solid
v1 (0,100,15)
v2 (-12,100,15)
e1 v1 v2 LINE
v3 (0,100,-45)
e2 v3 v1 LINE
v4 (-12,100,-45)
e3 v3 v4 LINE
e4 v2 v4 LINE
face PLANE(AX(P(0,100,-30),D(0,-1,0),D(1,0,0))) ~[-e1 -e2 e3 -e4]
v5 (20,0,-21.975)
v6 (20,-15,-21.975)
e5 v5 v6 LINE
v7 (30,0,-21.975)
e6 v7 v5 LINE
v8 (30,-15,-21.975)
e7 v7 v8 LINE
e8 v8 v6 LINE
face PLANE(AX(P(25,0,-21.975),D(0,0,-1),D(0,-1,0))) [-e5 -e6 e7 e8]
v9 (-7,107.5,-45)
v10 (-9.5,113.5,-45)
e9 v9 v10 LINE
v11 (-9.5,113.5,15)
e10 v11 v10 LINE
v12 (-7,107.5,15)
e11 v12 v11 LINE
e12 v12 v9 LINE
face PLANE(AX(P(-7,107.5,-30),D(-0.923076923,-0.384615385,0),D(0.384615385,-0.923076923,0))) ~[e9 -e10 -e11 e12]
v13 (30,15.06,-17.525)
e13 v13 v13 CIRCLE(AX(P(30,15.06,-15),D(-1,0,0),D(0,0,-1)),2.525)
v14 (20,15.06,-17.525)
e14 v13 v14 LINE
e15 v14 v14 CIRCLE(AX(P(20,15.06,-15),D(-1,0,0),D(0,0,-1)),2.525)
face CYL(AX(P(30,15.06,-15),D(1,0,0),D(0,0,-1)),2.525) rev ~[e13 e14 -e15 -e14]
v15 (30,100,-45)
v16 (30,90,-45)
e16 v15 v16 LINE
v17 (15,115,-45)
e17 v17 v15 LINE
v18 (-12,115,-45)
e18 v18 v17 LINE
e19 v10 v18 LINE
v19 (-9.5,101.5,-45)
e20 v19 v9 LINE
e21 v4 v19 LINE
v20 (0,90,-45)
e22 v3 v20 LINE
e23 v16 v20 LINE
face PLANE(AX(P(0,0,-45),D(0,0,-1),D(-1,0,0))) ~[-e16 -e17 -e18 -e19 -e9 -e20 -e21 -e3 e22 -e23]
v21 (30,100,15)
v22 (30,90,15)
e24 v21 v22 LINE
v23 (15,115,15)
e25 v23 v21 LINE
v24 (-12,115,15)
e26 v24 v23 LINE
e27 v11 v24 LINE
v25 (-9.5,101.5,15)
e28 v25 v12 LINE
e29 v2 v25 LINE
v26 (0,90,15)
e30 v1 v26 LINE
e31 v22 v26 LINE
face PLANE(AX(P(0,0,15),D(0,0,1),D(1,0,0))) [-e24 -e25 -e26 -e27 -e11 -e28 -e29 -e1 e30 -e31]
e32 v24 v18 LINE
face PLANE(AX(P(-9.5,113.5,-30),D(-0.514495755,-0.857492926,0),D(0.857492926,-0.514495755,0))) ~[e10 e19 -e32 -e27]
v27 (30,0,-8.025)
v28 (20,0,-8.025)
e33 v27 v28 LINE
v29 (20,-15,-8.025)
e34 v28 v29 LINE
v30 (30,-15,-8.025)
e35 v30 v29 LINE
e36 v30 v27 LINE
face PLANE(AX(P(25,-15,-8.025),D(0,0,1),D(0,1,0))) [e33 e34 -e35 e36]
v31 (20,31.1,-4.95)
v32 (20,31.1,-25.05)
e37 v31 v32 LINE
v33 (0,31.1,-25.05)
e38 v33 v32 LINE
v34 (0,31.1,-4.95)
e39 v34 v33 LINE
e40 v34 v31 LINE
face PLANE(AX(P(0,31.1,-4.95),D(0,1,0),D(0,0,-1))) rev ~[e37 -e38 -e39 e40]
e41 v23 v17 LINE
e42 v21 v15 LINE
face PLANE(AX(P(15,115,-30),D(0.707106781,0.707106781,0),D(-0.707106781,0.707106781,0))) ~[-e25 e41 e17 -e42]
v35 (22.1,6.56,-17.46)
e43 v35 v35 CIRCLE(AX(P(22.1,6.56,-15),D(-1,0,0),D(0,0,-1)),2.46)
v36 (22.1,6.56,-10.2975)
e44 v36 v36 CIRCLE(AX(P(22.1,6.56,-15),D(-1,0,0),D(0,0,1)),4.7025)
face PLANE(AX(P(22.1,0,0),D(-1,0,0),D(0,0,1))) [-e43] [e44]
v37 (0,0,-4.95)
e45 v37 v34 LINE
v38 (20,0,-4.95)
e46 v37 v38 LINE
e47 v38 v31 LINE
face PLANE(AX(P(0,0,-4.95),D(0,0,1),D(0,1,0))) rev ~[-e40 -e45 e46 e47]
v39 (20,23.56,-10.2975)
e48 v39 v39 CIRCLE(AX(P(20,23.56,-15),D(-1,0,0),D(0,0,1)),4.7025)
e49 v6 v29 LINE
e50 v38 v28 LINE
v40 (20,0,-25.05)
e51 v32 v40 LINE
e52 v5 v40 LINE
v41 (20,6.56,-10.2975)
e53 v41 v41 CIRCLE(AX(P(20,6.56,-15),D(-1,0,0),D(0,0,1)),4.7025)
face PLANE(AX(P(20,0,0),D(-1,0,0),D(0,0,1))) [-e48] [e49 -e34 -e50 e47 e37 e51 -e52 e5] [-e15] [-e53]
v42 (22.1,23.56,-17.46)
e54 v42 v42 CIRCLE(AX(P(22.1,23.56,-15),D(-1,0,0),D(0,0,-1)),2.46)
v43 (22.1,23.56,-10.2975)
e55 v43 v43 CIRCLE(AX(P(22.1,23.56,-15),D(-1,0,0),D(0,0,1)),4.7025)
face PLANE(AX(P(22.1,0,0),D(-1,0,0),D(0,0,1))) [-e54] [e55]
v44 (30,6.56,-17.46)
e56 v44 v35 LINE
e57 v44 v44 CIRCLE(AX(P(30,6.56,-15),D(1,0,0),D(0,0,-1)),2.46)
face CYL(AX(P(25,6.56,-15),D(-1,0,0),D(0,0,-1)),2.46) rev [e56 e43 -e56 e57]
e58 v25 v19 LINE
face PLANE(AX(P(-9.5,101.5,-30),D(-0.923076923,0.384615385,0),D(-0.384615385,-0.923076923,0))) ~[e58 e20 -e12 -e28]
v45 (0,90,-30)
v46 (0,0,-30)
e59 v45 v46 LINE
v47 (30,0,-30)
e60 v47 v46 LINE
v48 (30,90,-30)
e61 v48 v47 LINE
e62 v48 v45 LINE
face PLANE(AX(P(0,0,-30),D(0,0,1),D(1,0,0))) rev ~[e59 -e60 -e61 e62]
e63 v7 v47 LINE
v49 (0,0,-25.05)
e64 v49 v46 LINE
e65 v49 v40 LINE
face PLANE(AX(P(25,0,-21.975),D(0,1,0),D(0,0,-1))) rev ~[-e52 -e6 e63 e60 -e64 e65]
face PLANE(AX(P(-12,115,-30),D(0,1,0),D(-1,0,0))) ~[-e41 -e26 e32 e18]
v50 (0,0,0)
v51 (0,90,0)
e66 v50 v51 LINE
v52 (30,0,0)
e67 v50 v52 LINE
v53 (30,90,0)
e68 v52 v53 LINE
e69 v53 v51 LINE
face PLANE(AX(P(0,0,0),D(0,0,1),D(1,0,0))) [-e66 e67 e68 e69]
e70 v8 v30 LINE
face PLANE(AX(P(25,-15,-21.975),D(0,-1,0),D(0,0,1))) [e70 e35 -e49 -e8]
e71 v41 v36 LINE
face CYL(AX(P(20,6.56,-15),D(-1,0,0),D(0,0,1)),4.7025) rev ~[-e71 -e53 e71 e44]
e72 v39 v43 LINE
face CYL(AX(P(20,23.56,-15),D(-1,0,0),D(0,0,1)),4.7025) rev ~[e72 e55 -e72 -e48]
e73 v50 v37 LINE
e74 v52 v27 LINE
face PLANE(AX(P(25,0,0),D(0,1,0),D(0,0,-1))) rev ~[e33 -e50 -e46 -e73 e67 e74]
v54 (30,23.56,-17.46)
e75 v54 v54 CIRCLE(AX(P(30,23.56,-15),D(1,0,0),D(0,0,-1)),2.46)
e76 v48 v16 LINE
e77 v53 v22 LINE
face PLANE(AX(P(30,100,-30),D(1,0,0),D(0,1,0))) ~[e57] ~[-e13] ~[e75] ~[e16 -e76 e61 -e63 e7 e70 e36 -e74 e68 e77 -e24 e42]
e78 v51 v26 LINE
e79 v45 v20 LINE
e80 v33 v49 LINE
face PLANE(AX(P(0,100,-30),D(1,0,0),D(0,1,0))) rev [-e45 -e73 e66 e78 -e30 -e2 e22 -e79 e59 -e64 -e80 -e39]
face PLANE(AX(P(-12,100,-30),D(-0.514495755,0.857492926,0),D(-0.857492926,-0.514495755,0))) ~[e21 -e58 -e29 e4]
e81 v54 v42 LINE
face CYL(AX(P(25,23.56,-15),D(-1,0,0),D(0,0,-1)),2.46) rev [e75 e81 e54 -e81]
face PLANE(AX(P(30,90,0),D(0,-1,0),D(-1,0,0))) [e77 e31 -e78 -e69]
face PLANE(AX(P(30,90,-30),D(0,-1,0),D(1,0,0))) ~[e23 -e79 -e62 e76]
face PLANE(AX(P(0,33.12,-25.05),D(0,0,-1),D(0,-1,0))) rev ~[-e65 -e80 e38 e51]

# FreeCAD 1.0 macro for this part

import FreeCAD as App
import Part
import Sketcher

V = App.Vector
Q = App.Units.Quantity


def add_polygon(sketch, points):
    """Adds a closed chain of lines whose ends are joined by coincident constraints."""
    first, n = sketch.GeometryCount, len(points)
    for a, b in zip(points, points[1:] + points[:1]):
        sketch.addGeometry(Part.LineSegment(App.Vector(*a, 0), App.Vector(*b, 0)), False)
    for i in range(n):
        sketch.addConstraint(Sketcher.Constraint("Coincident", first + i, 2, first + (i + 1) % n, 1))

doc = App.newDocument("Part")
body = doc.addObject("PartDesign::Body", "Body")

sketch1 = doc.addObject("Sketcher::SketchObject", "Sketch")
body.addObject(sketch1)
sketch1.AttachmentSupport = (doc.XY_Plane, [""])
sketch1.MapMode = "FlatFace"
add_polygon(sketch1, [(0, 40), (0, 0), (25, 0), (25, 40)])
sketch1.addConstraint(Sketcher.Constraint("Vertical", 0))
sketch1.addConstraint(Sketcher.Constraint("Horizontal", 1))
sketch1.addConstraint(Sketcher.Constraint("Vertical", 2))
sketch1.addConstraint(Sketcher.Constraint("Horizontal", 3))
sketch1.addConstraint(Sketcher.Constraint("Coincident", 0, 2, -1, 1))
sketch1.addConstraint(Sketcher.Constraint("DistanceX", 1, 1, 1, 2, Q("25 mm")))
sketch1.addConstraint(Sketcher.Constraint("DistanceY", 0, 2, 0, 1, Q("40 mm")))
pad1 = doc.addObject("PartDesign::Pad", "Pad")
body.addObject(pad1)
pad1.Profile = sketch1
pad1.Length = 30
pad1.Reversed = True

sketch2 = doc.addObject("Sketcher::SketchObject", "Sketch001")
body.addObject(sketch2)
sketch2.AttachmentSupport = (doc.YZ_Plane, [""])
sketch2.MapMode = "FlatFace"
sketch2.AttachmentOffset = App.Placement(V(0, 0, 25), App.Rotation())
sketch2.addGeometry(Part.Circle(V(6.6, -15, 0), V(0, 0, 1), 2.5), False)
sketch2.addConstraint(Sketcher.Constraint("Diameter", 0, Q("4.92 mm")))
sketch2.addConstraint(Sketcher.Constraint("DistanceY", 0, 3, -1, 1, Q("15 mm")))
sketch2.addConstraint(Sketcher.Constraint("DistanceX", -1, 1, 0, 3, Q("6.56 mm")))
pocket1 = doc.addObject("PartDesign::Pocket", "Pocket")
body.addObject(pocket1)
pocket1.Profile = sketch2
pocket1.Length = 30

sketch3 = doc.addObject("Sketcher::SketchObject", "Sketch002")
body.addObject(sketch3)
sketch3.AttachmentSupport = (doc.YZ_Plane, [""])
sketch3.MapMode = "FlatFace"
add_polygon(sketch3, [(0, -25), (0, -5), (33, -5), (33, -25)])
sketch3.addConstraint(Sketcher.Constraint("Vertical", 0))
sketch3.addConstraint(Sketcher.Constraint("Horizontal", 1))
sketch3.addConstraint(Sketcher.Constraint("Vertical", 2))
sketch3.addConstraint(Sketcher.Constraint("Horizontal", 3))
sketch3.addConstraint(Sketcher.Constraint("PointOnObject", 0, 2, -2))
sketch3.addConstraint(Sketcher.Constraint("DistanceY", 0, 1, 0, 2, Q("20.1 mm")))
sketch3.addConstraint(Sketcher.Constraint("DistanceX", 1, 1, 1, 2, Q("33.12 mm")))
sketch3.addConstraint(Sketcher.Constraint("DistanceY", 0, 2, -1, 1, Q("4.95 mm")))
pocket2 = doc.addObject("PartDesign::Pocket", "Pocket001")
body.addObject(pocket2)
pocket2.Profile = sketch3
pocket2.Length = 20
pocket2.Reversed = True

sketch4 = doc.addObject("Sketcher::SketchObject", "Sketch003")
body.addObject(sketch4)
sketch4.AttachmentSupport = (doc.XZ_Plane, [""])
sketch4.MapMode = "FlatFace"
add_polygon(sketch4, [(25, -8), (20, -8), (20, -22), (25, -22)])
sketch4.addConstraint(Sketcher.Constraint("Horizontal", 0))
sketch4.addConstraint(Sketcher.Constraint("Vertical", 1))
sketch4.addConstraint(Sketcher.Constraint("Horizontal", 2))
sketch4.addConstraint(Sketcher.Constraint("Vertical", 3))
sketch4.addConstraint(Sketcher.Constraint("DistanceY", 1, 2, 1, 1, Q("13.95 mm")))
sketch4.addConstraint(Sketcher.Constraint("DistanceX", 0, 2, 0, 1, Q("5 mm")))
sketch4.addConstraint(Sketcher.Constraint("DistanceX", -1, 1, 0, 2, Q("20 mm")))
sketch4.addConstraint(Sketcher.Constraint("DistanceY", 0, 2, -1, 1, Q("8.025 mm")))
pad2 = doc.addObject("PartDesign::Pad", "Pad001")
body.addObject(pad2)
pad2.Profile = sketch4
pad2.Length = 15

sketch5 = doc.addObject("Sketcher::SketchObject", "Sketch004")
body.addObject(sketch5)
sketch5.AttachmentSupport = (doc.YZ_Plane, [""])
sketch5.MapMode = "FlatFace"
sketch5.AttachmentOffset = App.Placement(V(0, 0, 20), App.Rotation())
sketch5.addGeometry(Part.Circle(V(6.6, -15, 0), V(0, 0, 1), 4.7), False)
sketch5.addGeometry(Part.Circle(V(6.6, -15, 0), V(0, 0, 1), 2.5), False)
sketch5.addConstraint(Sketcher.Constraint("Coincident", 1, 3, 0, 3))
sketch5.addConstraint(Sketcher.Constraint("Diameter", 0, Q("9.405 mm")))
sketch5.addConstraint(Sketcher.Constraint("Diameter", 1, Q("4.92 mm")))
sketch5.addConstraint(Sketcher.Constraint("DistanceY", 0, 3, -1, 1, Q("15 mm")))
sketch5.addConstraint(Sketcher.Constraint("DistanceX", -1, 1, 0, 3, Q("6.56 mm")))
pocket3 = doc.addObject("PartDesign::Pocket", "Pocket002")
body.addObject(pocket3)
pocket3.Profile = sketch5
pocket3.Length = 2.1
pocket3.Reversed = True

sketch6 = doc.addObject("Sketcher::SketchObject", "Sketch005")
body.addObject(sketch6)
sketch6.AttachmentSupport = (doc.YZ_Plane, [""])
sketch6.MapMode = "FlatFace"
sketch6.AttachmentOffset = App.Placement(V(0, 0, 25), App.Rotation())
sketch6.addGeometry(Part.Circle(V(23.6, -15, 0), V(0, 0, 1), 2.5), False)
sketch6.addConstraint(Sketcher.Constraint("Diameter", 0, Q("4.92 mm")))
sketch6.addConstraint(Sketcher.Constraint("DistanceY", 0, 3, -1, 1, Q("15 mm")))
sketch6.addConstraint(Sketcher.Constraint("DistanceX", -1, 1, 0, 3, Q("23.56 mm")))
pocket4 = doc.addObject("PartDesign::Pocket", "Pocket003")
body.addObject(pocket4)
pocket4.Profile = sketch6
pocket4.Length = 10

sketch7 = doc.addObject("Sketcher::SketchObject", "Sketch006")
body.addObject(sketch7)
sketch7.AttachmentSupport = (doc.YZ_Plane, [""])
sketch7.MapMode = "FlatFace"
sketch7.AttachmentOffset = App.Placement(V(0, 0, 20), App.Rotation())
sketch7.addGeometry(Part.Circle(V(23.6, -15, 0), V(0, 0, 1), 4.7), False)
sketch7.addGeometry(Part.Circle(V(23.6, -15, 0), V(0, 0, 1), 2.5), False)
sketch7.addConstraint(Sketcher.Constraint("Coincident", 1, 3, 0, 3))
sketch7.addConstraint(Sketcher.Constraint("Diameter", 0, Q("9.405 mm")))
sketch7.addConstraint(Sketcher.Constraint("Diameter", 1, Q("4.92 mm")))
sketch7.addConstraint(Sketcher.Constraint("DistanceY", 0, 3, -1, 1, Q("15 mm")))
sketch7.addConstraint(Sketcher.Constraint("DistanceX", -1, 1, 0, 3, Q("23.56 mm")))
pocket5 = doc.addObject("PartDesign::Pocket", "Pocket004")
body.addObject(pocket5)
pocket5.Profile = sketch7
pocket5.Length = 2.1
pocket5.Reversed = True

sketch8 = doc.addObject("Sketcher::SketchObject", "Sketch007")
body.addObject(sketch8)
sketch8.AttachmentSupport = (doc.YZ_Plane, [""])
sketch8.MapMode = "FlatFace"
sketch8.AttachmentOffset = App.Placement(V(0, 0, 25), App.Rotation())
add_polygon(sketch8, [(0, -30), (40, -30), (40, 0), (0, 0), (0, -8), (-15, -8), (-15, -22), (0, -22)])
sketch8.addGeometry(Part.Circle(V(6.6, -15, 0), V(0, 0, 1), 2.5), False)
sketch8.addGeometry(Part.Circle(V(23.6, -15, 0), V(0, 0, 1), 2.5), False)
sketch8.addConstraint(Sketcher.Constraint("Horizontal", 0))
sketch8.addConstraint(Sketcher.Constraint("Vertical", 1))
sketch8.addConstraint(Sketcher.Constraint("Horizontal", 2))
sketch8.addConstraint(Sketcher.Constraint("Vertical", 3))
sketch8.addConstraint(Sketcher.Constraint("Horizontal", 4))
sketch8.addConstraint(Sketcher.Constraint("Vertical", 5))
sketch8.addConstraint(Sketcher.Constraint("Horizontal", 6))
sketch8.addConstraint(Sketcher.Constraint("Vertical", 7))
sketch8.addConstraint(Sketcher.Constraint("Coincident", 2, 2, -1, 1))
sketch8.addConstraint(Sketcher.Constraint("Equal", 8, 9))
sketch8.addConstraint(Sketcher.Constraint("PointOnObject", 6, 2, -2))
sketch8.addConstraint(Sketcher.Constraint("Horizontal", 8, 3, 9, 3))
sketch8.addConstraint(Sketcher.Constraint("Equal", 3, 7))
sketch8.addConstraint(Sketcher.Constraint("Diameter", 8, Q("4.92 mm")))
sketch8.addConstraint(Sketcher.Constraint("DistanceX", 0, 1, 0, 2, Q("40 mm")))
sketch8.addConstraint(Sketcher.Constraint("DistanceX", 4, 2, 4, 1, Q("15 mm")))
sketch8.addConstraint(Sketcher.Constraint("DistanceY", 1, 1, 1, 2, Q("30 mm")))
sketch8.addConstraint(Sketcher.Constraint("DistanceY", 8, 3, -1, 1, Q("15 mm")))
sketch8.addConstraint(Sketcher.Constraint("DistanceX", 8, 3, 9, 3, Q("17 mm")))
sketch8.addConstraint(Sketcher.Constraint("DistanceY", 5, 2, 5, 1, Q("13.95 mm")))
sketch8.addConstraint(Sketcher.Constraint("DistanceX", -1, 1, 8, 3, Q("6.56 mm")))
pad3 = doc.addObject("PartDesign::Pad", "Pad002")
body.addObject(pad3)
pad3.Profile = sketch8
pad3.Length = 5

sketch9 = doc.addObject("Sketcher::SketchObject", "Sketch008")
body.addObject(sketch9)
sketch9.AttachmentSupport = (doc.XZ_Plane, [""])
sketch9.MapMode = "FlatFace"
sketch9.AttachmentOffset = App.Placement(V(0, 0, -40), App.Rotation())
add_polygon(sketch9, [(30, -30), (0, -30), (0, 0), (30, 0)])
sketch9.addConstraint(Sketcher.Constraint("Horizontal", 0))
sketch9.addConstraint(Sketcher.Constraint("Vertical", 1))
sketch9.addConstraint(Sketcher.Constraint("Horizontal", 2))
sketch9.addConstraint(Sketcher.Constraint("Vertical", 3))
sketch9.addConstraint(Sketcher.Constraint("Coincident", 1, 2, -1, 1))
sketch9.addConstraint(Sketcher.Constraint("Equal", 2, 1))
sketch9.addConstraint(Sketcher.Constraint("DistanceX", 0, 2, 0, 1, Q("30 mm")))
pad4 = doc.addObject("PartDesign::Pad", "Pad003")
body.addObject(pad4)
pad4.Profile = sketch9
pad4.Length = 30
pad4.Reversed = True

sketch10 = doc.addObject("Sketcher::SketchObject", "Sketch009")
body.addObject(sketch10)
sketch10.AttachmentSupport = (doc.YZ_Plane, [""])
sketch10.MapMode = "FlatFace"
sketch10.AttachmentOffset = App.Placement(V(0, 0, 30), App.Rotation())
sketch10.addGeometry(Part.Circle(V(15.1, -15, 0), V(0, 0, 1), 2.5), False)
sketch10.addConstraint(Sketcher.Constraint("Diameter", 0, Q("5.05 mm")))
sketch10.addConstraint(Sketcher.Constraint("DistanceY", 0, 3, -1, 1, Q("15 mm")))
sketch10.addConstraint(Sketcher.Constraint("DistanceX", -1, 1, 0, 3, Q("15.06 mm")))
pocket6 = doc.addObject("PartDesign::Pocket", "Pocket005")
body.addObject(pocket6)
pocket6.Profile = sketch10
pocket6.Length = 30

sketch11 = doc.addObject("Sketcher::SketchObject", "Sketch010")
body.addObject(sketch11)
sketch11.AttachmentSupport = (doc.XY_Plane, [""])
sketch11.MapMode = "FlatFace"
add_polygon(sketch11, [(0, 70), (30, 70), (30, 100), (15, 115), (-12, 115), (-9.5, 113.5), (-7, 107.5), (-9.5, 101.5), (-12, 100), (0, 100)])
sketch11.addConstraint(Sketcher.Constraint("Horizontal", 0))
sketch11.addConstraint(Sketcher.Constraint("Vertical", 1))
sketch11.addConstraint(Sketcher.Constraint("Horizontal", 3))
sketch11.addConstraint(Sketcher.Constraint("Horizontal", 8))
sketch11.addConstraint(Sketcher.Constraint("Vertical", 9))
sketch11.addConstraint(Sketcher.Constraint("PointOnObject", 8, 2, -2))
sketch11.addConstraint(Sketcher.Constraint("Horizontal", 1, 2, 7, 2))
sketch11.addConstraint(Sketcher.Constraint("Vertical", 4, 2, 6, 2))
sketch11.addConstraint(Sketcher.Constraint("Vertical", 3, 2, 7, 2))
sketch11.addConstraint(Sketcher.Constraint("Equal", 0, 1))
sketch11.addConstraint(Sketcher.Constraint("Equal", 5, 6))
sketch11.addConstraint(Sketcher.Constraint("Equal", 4, 7))
sketch11.addConstraint(Sketcher.Constraint("DistanceX", 8, 1, 8, 2, Q("12 mm")))
sketch11.addConstraint(Sketcher.Constraint("DistanceX", -1, 1, 2, 2, Q("15 mm")))
sketch11.addConstraint(Sketcher.Constraint("DistanceX", 2, 2, 1, 2, Q("15 mm")))
sketch11.addConstraint(Sketcher.Constraint("DistanceY", 1, 2, 2, 2, Q("15 mm")))
sketch11.addConstraint(Sketcher.Constraint("DistanceY", 6, 2, 4, 2, Q("12 mm")))
sketch11.addConstraint(Sketcher.Constraint("DistanceY", -1, 1, 0, 2, Q("70 mm")))
sketch11.addConstraint(Sketcher.Constraint("DistanceX", 5, 2, -1, 1, Q("7 mm")))
sketch11.addConstraint(Sketcher.Constraint("Distance", 5, Q("6.5 mm")))
pad5 = doc.addObject("PartDesign::Pad", "Pad004")
body.addObject(pad5)
pad5.Profile = sketch11
pad5.Length = 30
pad5.Reversed = True

sketch12 = doc.addObject("Sketcher::SketchObject", "Sketch011")
body.addObject(sketch12)
sketch12.AttachmentSupport = (doc.YZ_Plane, [""])
sketch12.MapMode = "FlatFace"
add_polygon(sketch12, [(33.1, -5), (33.1, -25.1), (31.1, -25.1), (31.1, -5)])
sketch12.addConstraint(Sketcher.Constraint("Vertical", 0))
sketch12.addConstraint(Sketcher.Constraint("Horizontal", 1))
sketch12.addConstraint(Sketcher.Constraint("Vertical", 2))
sketch12.addConstraint(Sketcher.Constraint("Horizontal", 3))
sketch12.addConstraint(Sketcher.Constraint("DistanceX", 1, 2, 1, 1, Q("2.02 mm")))
sketch12.addConstraint(Sketcher.Constraint("DistanceY", 0, 2, 0, 1, Q("20.1 mm")))
sketch12.addConstraint(Sketcher.Constraint("DistanceX", -1, 1, 1, 2, Q("31.1 mm")))
sketch12.addConstraint(Sketcher.Constraint("DistanceY", 0, 2, -1, 1, Q("25.05 mm")))
pad6 = doc.addObject("PartDesign::Pad", "Pad005")
body.addObject(pad6)
pad6.Profile = sketch12
pad6.Length = 20

sketch13 = doc.addObject("Sketcher::SketchObject", "Sketch012")
body.addObject(sketch13)
sketch13.AttachmentSupport = (doc.XY_Plane, [""])
sketch13.MapMode = "FlatFace"
add_polygon(sketch13, [(-12, 100), (0, 100), (0, 90), (30, 90), (30, 100), (15, 115), (-12, 115), (-9.5, 113.5), (-7, 107.5), (-9.5, 101.5)])
sketch13.addConstraint(Sketcher.Constraint("Horizontal", 0))
sketch13.addConstraint(Sketcher.Constraint("Vertical", 1))
sketch13.addConstraint(Sketcher.Constraint("Horizontal", 2))
sketch13.addConstraint(Sketcher.Constraint("Vertical", 3))
sketch13.addConstraint(Sketcher.Constraint("Horizontal", 5))
sketch13.addConstraint(Sketcher.Constraint("PointOnObject", 0, 2, -2))
sketch13.addConstraint(Sketcher.Constraint("Horizontal", 0, 2, 3, 2))
sketch13.addConstraint(Sketcher.Constraint("Vertical", 6, 2, 8, 2))
sketch13.addConstraint(Sketcher.Constraint("Vertical", 5, 2, 9, 2))
sketch13.addConstraint(Sketcher.Constraint("Equal", 7, 8))
sketch13.addConstraint(Sketcher.Constraint("Equal", 6, 9))
sketch13.addConstraint(Sketcher.Constraint("DistanceX", 2, 1, 2, 2, Q("30 mm")))
sketch13.addConstraint(Sketcher.Constraint("DistanceY", 1, 2, 1, 1, Q("10 mm")))
sketch13.addConstraint(Sketcher.Constraint("DistanceX", 0, 1, 0, 2, Q("12 mm")))
sketch13.addConstraint(Sketcher.Constraint("DistanceX", 5, 2, 5, 1, Q("27 mm")))
sketch13.addConstraint(Sketcher.Constraint("Angle", 4, Q("135 deg")))
sketch13.addConstraint(Sketcher.Constraint("DistanceY", -1, 1, 0, 2, Q("100 mm")))
sketch13.addConstraint(Sketcher.Constraint("DistanceX", 7, 2, -1, 1, Q("7 mm")))
sketch13.addConstraint(Sketcher.Constraint("DistanceY", 7, 2, 6, 2, Q("6 mm")))
sketch13.addConstraint(Sketcher.Constraint("Distance", 7, Q("6.5 mm")))
pad7 = doc.addObject("PartDesign::Pad", "Pad006")
body.addObject(pad7)
pad7.Profile = sketch13
pad7.Length = 15
doc.recompute()

datumplane = doc.addObject("PartDesign::Plane", "DatumPlane")
body.addObject(datumplane)
datumplane.AttachmentSupport = (doc.XY_Plane, [""])
datumplane.MapMode = "FlatFace"
datumplane.AttachmentOffset = App.Placement(V(0, 0, -15), App.Rotation())
mirrored = doc.addObject("PartDesign::Mirrored", "Mirrored")
body.addObject(mirrored)
mirrored.Originals = [pad7]
mirrored.MirrorPlane = (datumplane, [""])
body.Tip = mirrored

doc.recompute()
